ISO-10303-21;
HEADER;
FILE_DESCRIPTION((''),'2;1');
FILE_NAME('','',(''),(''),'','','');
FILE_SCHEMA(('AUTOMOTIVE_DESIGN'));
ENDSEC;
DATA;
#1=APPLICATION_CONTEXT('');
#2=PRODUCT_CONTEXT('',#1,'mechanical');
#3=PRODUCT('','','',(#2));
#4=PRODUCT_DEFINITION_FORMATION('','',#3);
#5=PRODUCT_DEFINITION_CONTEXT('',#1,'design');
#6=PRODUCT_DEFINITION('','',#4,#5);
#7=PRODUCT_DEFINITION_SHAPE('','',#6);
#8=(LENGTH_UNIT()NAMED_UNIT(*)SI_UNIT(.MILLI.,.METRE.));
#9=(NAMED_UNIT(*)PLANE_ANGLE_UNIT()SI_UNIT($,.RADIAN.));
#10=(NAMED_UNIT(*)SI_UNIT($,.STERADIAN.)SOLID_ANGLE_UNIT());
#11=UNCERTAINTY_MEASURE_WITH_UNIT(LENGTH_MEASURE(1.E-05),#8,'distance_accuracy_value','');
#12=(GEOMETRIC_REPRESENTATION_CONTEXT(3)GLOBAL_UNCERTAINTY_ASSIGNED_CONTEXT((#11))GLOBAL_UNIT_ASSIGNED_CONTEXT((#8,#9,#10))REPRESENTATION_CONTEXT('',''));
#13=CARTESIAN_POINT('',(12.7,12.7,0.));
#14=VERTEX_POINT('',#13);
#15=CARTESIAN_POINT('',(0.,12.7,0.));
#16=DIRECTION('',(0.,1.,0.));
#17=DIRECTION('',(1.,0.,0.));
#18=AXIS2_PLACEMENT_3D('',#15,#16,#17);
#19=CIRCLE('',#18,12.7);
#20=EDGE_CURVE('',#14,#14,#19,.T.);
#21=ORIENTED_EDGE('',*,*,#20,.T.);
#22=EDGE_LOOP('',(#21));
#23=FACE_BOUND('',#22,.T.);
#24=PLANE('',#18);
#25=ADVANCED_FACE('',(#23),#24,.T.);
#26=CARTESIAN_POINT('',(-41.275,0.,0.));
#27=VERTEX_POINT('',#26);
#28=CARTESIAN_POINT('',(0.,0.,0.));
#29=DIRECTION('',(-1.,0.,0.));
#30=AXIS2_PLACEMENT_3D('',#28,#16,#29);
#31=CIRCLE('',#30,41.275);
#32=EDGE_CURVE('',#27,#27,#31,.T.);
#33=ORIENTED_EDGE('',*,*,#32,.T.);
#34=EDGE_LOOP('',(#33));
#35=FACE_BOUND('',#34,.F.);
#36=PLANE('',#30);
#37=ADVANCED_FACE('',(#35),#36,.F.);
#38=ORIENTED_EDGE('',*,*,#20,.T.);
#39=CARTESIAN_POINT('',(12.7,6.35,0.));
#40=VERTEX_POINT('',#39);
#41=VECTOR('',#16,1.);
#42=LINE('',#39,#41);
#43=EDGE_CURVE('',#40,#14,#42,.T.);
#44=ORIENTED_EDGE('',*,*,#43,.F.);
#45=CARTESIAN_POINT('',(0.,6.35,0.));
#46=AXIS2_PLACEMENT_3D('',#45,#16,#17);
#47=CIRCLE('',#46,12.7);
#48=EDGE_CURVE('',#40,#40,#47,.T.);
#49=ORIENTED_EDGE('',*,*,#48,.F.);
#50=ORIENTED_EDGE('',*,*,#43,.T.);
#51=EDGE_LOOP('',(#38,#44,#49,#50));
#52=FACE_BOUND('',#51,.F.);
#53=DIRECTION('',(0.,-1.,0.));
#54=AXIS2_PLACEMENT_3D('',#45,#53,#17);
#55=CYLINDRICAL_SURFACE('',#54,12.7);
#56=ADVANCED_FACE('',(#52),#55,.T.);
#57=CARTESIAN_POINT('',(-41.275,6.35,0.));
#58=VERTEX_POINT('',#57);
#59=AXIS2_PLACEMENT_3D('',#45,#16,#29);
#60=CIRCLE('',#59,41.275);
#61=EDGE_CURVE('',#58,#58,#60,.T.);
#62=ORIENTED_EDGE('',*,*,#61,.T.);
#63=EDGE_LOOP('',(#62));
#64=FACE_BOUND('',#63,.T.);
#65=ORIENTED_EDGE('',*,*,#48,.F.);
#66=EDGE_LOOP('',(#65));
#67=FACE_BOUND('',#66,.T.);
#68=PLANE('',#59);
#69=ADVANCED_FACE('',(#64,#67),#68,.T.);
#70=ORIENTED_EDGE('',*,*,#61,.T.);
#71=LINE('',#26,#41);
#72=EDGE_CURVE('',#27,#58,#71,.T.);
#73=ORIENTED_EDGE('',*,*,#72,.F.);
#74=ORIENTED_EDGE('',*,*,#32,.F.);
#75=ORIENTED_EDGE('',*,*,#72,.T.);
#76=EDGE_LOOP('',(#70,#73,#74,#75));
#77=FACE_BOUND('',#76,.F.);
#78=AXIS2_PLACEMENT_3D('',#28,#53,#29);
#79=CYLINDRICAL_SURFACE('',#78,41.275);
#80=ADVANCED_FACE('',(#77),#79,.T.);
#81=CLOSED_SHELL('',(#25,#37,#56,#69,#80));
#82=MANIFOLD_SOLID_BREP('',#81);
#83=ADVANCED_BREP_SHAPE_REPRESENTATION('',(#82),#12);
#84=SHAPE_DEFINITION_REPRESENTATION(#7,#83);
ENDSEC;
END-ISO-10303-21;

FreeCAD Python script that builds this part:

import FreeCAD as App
import Part
import Sketcher

V = App.Vector
Q = App.Units.Quantity

doc = App.newDocument("Part")
body = doc.addObject("PartDesign::Body", "Body")

sketch1 = doc.addObject("Sketcher::SketchObject", "Sketch")
body.addObject(sketch1)
sketch1.AttachmentSupport = (doc.XZ_Plane, [""])
sketch1.MapMode = "FlatFace"
sketch1.addGeometry(Part.Circle(V(0, 0, 0), V(0, 0, 1), 41), False)
sketch1.addConstraint([
    Sketcher.Constraint("Coincident", 0, 3, -1, 1),
    Sketcher.Constraint("Diameter", 0, Q("3.25 in")),
])
pad1 = doc.addObject("PartDesign::Pad", "Pad")
body.addObject(pad1)
pad1.Profile = sketch1
pad1.Length = Q("0.25 in")
pad1.Reversed = True

sketch2 = doc.addObject("Sketcher::SketchObject", "Sketch001")
body.addObject(sketch2)
sketch2.AttachmentSupport = (doc.XZ_Plane, [""])
sketch2.MapMode = "FlatFace"
sketch2.AttachmentOffset = App.Placement(V(0, 0, -0.25 * 25.4), App.Rotation())
sketch2.addGeometry(Part.Circle(V(0, 0, 0), V(0, 0, 1), 13), False)
sketch2.addConstraint([
    Sketcher.Constraint("Coincident", 0, 3, -1, 1),
    Sketcher.Constraint("Diameter", 0, Q("1 in")),
])
pad2 = doc.addObject("PartDesign::Pad", "Pad001")
body.addObject(pad2)
pad2.Profile = sketch2
pad2.Length = Q("0.25 in")
pad2.Reversed = True

doc.recompute()
